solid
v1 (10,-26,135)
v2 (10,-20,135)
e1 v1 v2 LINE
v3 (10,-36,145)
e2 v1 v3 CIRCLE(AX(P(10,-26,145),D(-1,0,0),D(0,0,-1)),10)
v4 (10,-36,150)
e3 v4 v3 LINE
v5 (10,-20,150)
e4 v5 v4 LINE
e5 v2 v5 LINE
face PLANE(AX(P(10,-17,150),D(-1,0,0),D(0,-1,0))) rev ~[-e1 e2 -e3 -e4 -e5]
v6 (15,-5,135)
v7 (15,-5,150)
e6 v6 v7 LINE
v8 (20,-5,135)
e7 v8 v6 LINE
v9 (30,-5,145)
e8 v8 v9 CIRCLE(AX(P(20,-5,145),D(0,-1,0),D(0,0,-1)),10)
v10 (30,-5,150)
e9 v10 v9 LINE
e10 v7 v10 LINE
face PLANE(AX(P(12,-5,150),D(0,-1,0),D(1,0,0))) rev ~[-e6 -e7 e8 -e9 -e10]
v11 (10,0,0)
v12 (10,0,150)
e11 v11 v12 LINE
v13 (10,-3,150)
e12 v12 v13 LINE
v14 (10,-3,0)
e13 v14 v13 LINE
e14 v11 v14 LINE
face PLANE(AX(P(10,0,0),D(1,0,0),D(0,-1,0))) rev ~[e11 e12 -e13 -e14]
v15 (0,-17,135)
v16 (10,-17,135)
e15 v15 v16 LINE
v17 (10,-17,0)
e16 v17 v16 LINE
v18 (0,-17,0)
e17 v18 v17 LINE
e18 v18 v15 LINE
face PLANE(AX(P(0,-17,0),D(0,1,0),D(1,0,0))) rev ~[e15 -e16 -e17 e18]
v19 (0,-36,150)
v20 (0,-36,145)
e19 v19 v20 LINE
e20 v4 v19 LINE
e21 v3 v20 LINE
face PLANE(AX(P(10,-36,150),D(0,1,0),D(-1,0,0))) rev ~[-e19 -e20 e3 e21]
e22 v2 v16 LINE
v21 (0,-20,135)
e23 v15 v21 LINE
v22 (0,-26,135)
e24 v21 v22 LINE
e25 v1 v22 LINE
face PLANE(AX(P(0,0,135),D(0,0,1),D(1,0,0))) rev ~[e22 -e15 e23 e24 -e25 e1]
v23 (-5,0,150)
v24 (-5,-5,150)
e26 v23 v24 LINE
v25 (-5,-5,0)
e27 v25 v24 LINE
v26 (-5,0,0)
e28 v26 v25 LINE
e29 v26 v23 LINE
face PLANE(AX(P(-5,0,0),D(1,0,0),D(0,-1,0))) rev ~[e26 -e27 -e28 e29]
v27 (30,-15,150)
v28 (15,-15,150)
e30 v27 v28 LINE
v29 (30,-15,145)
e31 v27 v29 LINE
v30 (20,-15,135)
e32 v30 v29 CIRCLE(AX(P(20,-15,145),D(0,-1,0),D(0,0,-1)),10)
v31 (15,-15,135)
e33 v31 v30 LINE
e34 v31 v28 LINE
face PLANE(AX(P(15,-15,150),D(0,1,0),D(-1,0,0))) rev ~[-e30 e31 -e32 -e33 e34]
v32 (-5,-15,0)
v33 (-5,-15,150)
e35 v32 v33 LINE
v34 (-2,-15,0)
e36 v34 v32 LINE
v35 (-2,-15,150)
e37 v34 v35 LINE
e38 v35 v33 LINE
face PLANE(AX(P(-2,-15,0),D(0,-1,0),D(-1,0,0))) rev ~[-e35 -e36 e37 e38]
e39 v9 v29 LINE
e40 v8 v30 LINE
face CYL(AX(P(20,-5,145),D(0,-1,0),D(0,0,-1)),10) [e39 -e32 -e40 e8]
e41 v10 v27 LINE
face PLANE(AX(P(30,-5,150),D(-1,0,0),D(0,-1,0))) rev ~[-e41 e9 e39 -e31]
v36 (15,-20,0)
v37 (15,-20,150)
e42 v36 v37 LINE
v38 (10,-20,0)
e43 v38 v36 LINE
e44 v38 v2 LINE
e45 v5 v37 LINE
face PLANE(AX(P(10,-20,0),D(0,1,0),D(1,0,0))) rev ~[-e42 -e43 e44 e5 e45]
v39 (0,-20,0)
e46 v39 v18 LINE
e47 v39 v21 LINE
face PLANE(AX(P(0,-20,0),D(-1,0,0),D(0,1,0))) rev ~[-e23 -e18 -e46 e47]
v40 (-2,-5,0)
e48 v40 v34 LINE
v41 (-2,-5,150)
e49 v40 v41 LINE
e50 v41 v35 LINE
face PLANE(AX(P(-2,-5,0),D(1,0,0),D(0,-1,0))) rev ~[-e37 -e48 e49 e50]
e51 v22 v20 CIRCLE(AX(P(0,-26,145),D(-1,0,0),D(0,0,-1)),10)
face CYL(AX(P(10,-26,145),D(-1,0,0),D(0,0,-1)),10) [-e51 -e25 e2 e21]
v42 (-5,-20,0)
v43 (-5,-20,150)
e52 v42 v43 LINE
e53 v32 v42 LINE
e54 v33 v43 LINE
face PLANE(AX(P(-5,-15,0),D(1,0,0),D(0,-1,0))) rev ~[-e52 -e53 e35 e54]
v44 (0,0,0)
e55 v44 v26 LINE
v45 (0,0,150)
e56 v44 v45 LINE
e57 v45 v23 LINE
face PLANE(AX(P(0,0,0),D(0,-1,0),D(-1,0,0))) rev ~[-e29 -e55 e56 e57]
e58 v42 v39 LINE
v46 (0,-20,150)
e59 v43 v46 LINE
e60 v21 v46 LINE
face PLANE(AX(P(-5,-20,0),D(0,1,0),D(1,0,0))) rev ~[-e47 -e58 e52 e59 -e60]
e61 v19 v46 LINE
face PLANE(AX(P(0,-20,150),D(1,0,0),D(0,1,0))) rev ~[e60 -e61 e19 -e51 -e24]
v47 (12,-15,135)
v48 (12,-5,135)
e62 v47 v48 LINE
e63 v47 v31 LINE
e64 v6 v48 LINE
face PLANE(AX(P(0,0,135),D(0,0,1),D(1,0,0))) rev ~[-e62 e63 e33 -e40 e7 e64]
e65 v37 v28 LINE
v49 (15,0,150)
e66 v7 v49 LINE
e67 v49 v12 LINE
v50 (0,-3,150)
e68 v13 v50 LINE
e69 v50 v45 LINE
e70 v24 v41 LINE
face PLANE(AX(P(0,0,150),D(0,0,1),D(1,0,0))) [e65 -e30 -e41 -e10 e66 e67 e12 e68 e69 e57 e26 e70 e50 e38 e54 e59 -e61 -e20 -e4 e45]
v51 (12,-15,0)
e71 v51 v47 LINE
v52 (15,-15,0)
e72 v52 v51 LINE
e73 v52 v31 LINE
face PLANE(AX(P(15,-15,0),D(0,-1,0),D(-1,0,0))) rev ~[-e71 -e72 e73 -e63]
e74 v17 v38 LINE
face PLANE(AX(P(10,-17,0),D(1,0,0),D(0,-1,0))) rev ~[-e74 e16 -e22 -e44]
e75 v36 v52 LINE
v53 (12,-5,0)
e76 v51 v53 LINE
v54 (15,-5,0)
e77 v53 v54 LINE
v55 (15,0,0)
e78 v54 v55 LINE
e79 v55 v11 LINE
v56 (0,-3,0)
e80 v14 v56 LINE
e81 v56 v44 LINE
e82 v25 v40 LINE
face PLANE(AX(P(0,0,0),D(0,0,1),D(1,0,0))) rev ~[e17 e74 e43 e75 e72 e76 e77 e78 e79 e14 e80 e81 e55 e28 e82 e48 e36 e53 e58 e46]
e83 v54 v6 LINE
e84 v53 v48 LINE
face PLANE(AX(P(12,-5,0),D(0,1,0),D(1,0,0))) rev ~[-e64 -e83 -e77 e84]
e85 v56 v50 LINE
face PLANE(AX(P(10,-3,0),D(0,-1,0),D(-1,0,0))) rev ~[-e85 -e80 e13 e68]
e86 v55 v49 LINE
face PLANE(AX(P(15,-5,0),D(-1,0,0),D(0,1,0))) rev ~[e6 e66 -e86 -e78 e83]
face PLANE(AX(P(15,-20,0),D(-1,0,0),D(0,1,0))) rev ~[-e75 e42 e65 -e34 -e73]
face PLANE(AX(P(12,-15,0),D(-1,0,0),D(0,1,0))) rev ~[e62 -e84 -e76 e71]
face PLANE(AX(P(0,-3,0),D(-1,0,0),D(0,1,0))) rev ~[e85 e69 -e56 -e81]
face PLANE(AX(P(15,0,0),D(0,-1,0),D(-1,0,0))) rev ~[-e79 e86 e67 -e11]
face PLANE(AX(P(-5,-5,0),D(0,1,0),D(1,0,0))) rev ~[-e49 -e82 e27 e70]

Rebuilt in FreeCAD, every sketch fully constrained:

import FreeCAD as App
import Part
import Sketcher

V = App.Vector


def edges_at(feature, points):
    """Names of the edges that pass closest to the given points."""
    edges = feature.Shape.Edges
    near = lambda p: min(range(len(edges)), key=lambda i: edges[i].distToShape(Part.Vertex(*p))[0])
    return sorted({f"Edge{near(p) + 1}" for p in points})

doc = App.newDocument("Part")
params = doc.addObject("Spreadsheet::Sheet", "Params")
for row, (alias, value) in enumerate([
    ("sketch1_width", "5 mm"),
    ("sketch1_width2", "3 mm"),
    ("sketch1_width3", "10 mm"),
    ("pad1_length", "150 mm"),
    ("sketch2_width", "18 mm"),
    ("sketch2_width2", "10 mm"),
    ("sketch2_height", "19 mm"),
    ("pad2_length", "15 mm"),
    ("fillet_radius", "10 mm"),
], start=1):
    params.set(f"A{row}", alias)
    params.set(f"B{row}", "=" + value)
    params.setAlias(f"B{row}", alias)

body = doc.addObject("PartDesign::Body", "Body")

# Sketch on XY plane
sketch1 = body.newObject("Sketcher::SketchObject", "Sketch")
sketch1.AttachmentSupport = (doc.getObject("XY_Plane"), [""])
sketch1.MapMode = "FlatFace"
sketch1.addGeometry([
    Part.LineSegment(V(0, -3, 0), V(0, 0, 0)),  # 0
    Part.LineSegment(V(0, 0, 0), V(-5, 0, 0)),  # 1
    Part.LineSegment(V(-5, 0, 0), V(-5, -5, 0)),  # 2
    Part.LineSegment(V(-5, -5, 0), V(-2, -5, 0)),  # 3
    Part.LineSegment(V(-2, -5, 0), V(-2, -15, 0)),  # 4
    Part.LineSegment(V(-2, -15, 0), V(-5, -15, 0)),  # 5
    Part.LineSegment(V(-5, -15, 0), V(-5, -20, 0)),  # 6
    Part.LineSegment(V(-5, -20, 0), V(0, -20, 0)),  # 7
    Part.LineSegment(V(0, -20, 0), V(0, -17, 0)),  # 8
    Part.LineSegment(V(0, -17, 0), V(10, -17, 0)),  # 9
    Part.LineSegment(V(10, -17, 0), V(10, -20, 0)),  # 10
    Part.LineSegment(V(10, -20, 0), V(15, -20, 0)),  # 11
    Part.LineSegment(V(15, -20, 0), V(15, -15, 0)),  # 12
    Part.LineSegment(V(15, -15, 0), V(12, -15, 0)),  # 13
    Part.LineSegment(V(12, -15, 0), V(12, -5, 0)),  # 14
    Part.LineSegment(V(12, -5, 0), V(15, -5, 0)),  # 15
    Part.LineSegment(V(15, -5, 0), V(15, 0, 0)),  # 16
    Part.LineSegment(V(15, 0, 0), V(10, 0, 0)),  # 17
    Part.LineSegment(V(10, 0, 0), V(10, -3, 0)),  # 18
    Part.LineSegment(V(10, -3, 0), V(0, -3, 0)),  # 19
], False)
sketch1.addConstraint([
    Sketcher.Constraint("Coincident", 0, 2, 1, 1),
    Sketcher.Constraint("Coincident", 1, 2, 2, 1),
    Sketcher.Constraint("Coincident", 2, 2, 3, 1),
    Sketcher.Constraint("Coincident", 3, 2, 4, 1),
    Sketcher.Constraint("Coincident", 4, 2, 5, 1),
    Sketcher.Constraint("Coincident", 5, 2, 6, 1),
    Sketcher.Constraint("Coincident", 6, 2, 7, 1),
    Sketcher.Constraint("Coincident", 7, 2, 8, 1),
    Sketcher.Constraint("Coincident", 8, 2, 9, 1),
    Sketcher.Constraint("Coincident", 9, 2, 10, 1),
    Sketcher.Constraint("Coincident", 10, 2, 11, 1),
    Sketcher.Constraint("Coincident", 11, 2, 12, 1),
    Sketcher.Constraint("Coincident", 12, 2, 13, 1),
    Sketcher.Constraint("Coincident", 13, 2, 14, 1),
    Sketcher.Constraint("Coincident", 14, 2, 15, 1),
    Sketcher.Constraint("Coincident", 15, 2, 16, 1),
    Sketcher.Constraint("Coincident", 16, 2, 17, 1),
    Sketcher.Constraint("Coincident", 17, 2, 18, 1),
    Sketcher.Constraint("Coincident", 18, 2, 19, 1),
    Sketcher.Constraint("Coincident", 19, 2, 0, 1),
    Sketcher.Constraint("Vertical", 0),
    Sketcher.Constraint("Horizontal", 1),
    Sketcher.Constraint("Vertical", 2),
    Sketcher.Constraint("Horizontal", 3),
    Sketcher.Constraint("Vertical", 4),
    Sketcher.Constraint("Horizontal", 5),
    Sketcher.Constraint("Vertical", 6),
    Sketcher.Constraint("Horizontal", 7),
    Sketcher.Constraint("Vertical", 8),
    Sketcher.Constraint("Horizontal", 9),
    Sketcher.Constraint("Vertical", 10),
    Sketcher.Constraint("Horizontal", 11),
    Sketcher.Constraint("Vertical", 12),
    Sketcher.Constraint("Horizontal", 13),
    Sketcher.Constraint("Vertical", 14),
    Sketcher.Constraint("Horizontal", 15),
    Sketcher.Constraint("Vertical", 16),
    Sketcher.Constraint("Horizontal", 17),
    Sketcher.Constraint("Vertical", 18),
    Sketcher.Constraint("Horizontal", 19),
    Sketcher.Constraint("Coincident", 0, 2, -1, 1),
    Sketcher.Constraint("PointOnObject", 7, 2, -2),
    Sketcher.Constraint("PointOnObject", 16, 2, -1),
    Sketcher.Constraint("Horizontal", 7, 2, 10, 2),
    Sketcher.Constraint("Horizontal", 5, 2, 12, 2),
    Sketcher.Constraint("Horizontal", 3, 2, 14, 2),
    Sketcher.Constraint("Vertical", 2, 2, 5, 2),
    Sketcher.Constraint("Vertical", 12, 2, 15, 2),
    Sketcher.Constraint("Vertical", 10, 2, 17, 2),
    Sketcher.Constraint("Equal", 7, 11),
    Sketcher.Constraint("Equal", 5, 13),
    Sketcher.Constraint("Equal", 15, 0),
    Sketcher.Constraint("Equal", 17, 2),
    Sketcher.Constraint("Equal", 19, 4),
    Sketcher.Constraint("Equal", 2, 6),
    Sketcher.Constraint("Equal", 0, 8),
    Sketcher.Constraint("DistanceX", 1, 2, 1, 1, 5.0),
    Sketcher.Constraint("DistanceX", 3, 1, 3, 2, 3.0),
    Sketcher.Constraint("DistanceX", 9, 1, 9, 2, 10.0),
])
sketch1.setExpression("Constraints[56]", "Params.sketch1_width")
sketch1.setExpression("Constraints[57]", "Params.sketch1_width2")
sketch1.setExpression("Constraints[58]", "Params.sketch1_width3")
pad1 = body.newObject("PartDesign::Pad", "Pad")
pad1.Profile = sketch1
pad1.setExpression("Length", "Params.pad1_length")

# Sketch on XY plane
sketch2 = body.newObject("Sketcher::SketchObject", "Sketch001")
sketch2.AttachmentSupport = (doc.getObject("XY_Plane"), [""])
sketch2.MapMode = "FlatFace"
sketch2.AttachmentOffset = App.Placement(V(0, 0, 150), App.Rotation())
sketch2.addGeometry([
    Part.LineSegment(V(12, -5, 0), V(12, -15, 0)),  # 0
    Part.LineSegment(V(12, -15, 0), V(30, -15, 0)),  # 1
    Part.LineSegment(V(30, -15, 0), V(30, -5, 0)),  # 2
    Part.LineSegment(V(30, -5, 0), V(12, -5, 0)),  # 3
    Part.LineSegment(V(10, -17, 0), V(0, -17, 0)),  # 4
    Part.LineSegment(V(0, -17, 0), V(0, -36, 0)),  # 5
    Part.LineSegment(V(0, -36, 0), V(10, -36, 0)),  # 6
    Part.LineSegment(V(10, -36, 0), V(10, -17, 0)),  # 7
], False)
sketch2.addConstraint([
    Sketcher.Constraint("Coincident", 0, 2, 1, 1),
    Sketcher.Constraint("Coincident", 1, 2, 2, 1),
    Sketcher.Constraint("Coincident", 2, 2, 3, 1),
    Sketcher.Constraint("Coincident", 3, 2, 0, 1),
    Sketcher.Constraint("Coincident", 4, 2, 5, 1),
    Sketcher.Constraint("Coincident", 5, 2, 6, 1),
    Sketcher.Constraint("Coincident", 6, 2, 7, 1),
    Sketcher.Constraint("Coincident", 7, 2, 4, 1),
    Sketcher.Constraint("Vertical", 0),
    Sketcher.Constraint("Horizontal", 1),
    Sketcher.Constraint("Vertical", 2),
    Sketcher.Constraint("Horizontal", 3),
    Sketcher.Constraint("Horizontal", 4),
    Sketcher.Constraint("Vertical", 5),
    Sketcher.Constraint("Horizontal", 6),
    Sketcher.Constraint("Vertical", 7),
    Sketcher.Constraint("PointOnObject", 4, 2, -2),
    Sketcher.Constraint("Equal", 6, 0),
    Sketcher.Constraint("DistanceX", 1, 1, 1, 2, 18.0),
    Sketcher.Constraint("DistanceX", 4, 2, 4, 1, 10.0),
    Sketcher.Constraint("DistanceY", 5, 2, 5, 1, 19.0),
    Sketcher.Constraint("DistanceX", -1, 1, 0, 2, 12.0),
    Sketcher.Constraint("DistanceY", 0, 2, -1, 1, 15.0),
    Sketcher.Constraint("DistanceY", 4, 2, -1, 1, 17.0),
])
sketch2.setExpression("Constraints[18]", "Params.sketch2_width")
sketch2.setExpression("Constraints[19]", "Params.sketch2_width2")
sketch2.setExpression("Constraints[20]", "Params.sketch2_height")
pad2 = body.newObject("PartDesign::Pad", "Pad001")
pad2.Profile = sketch2
pad2.setExpression("Length", "Params.pad2_length")
pad2.Reversed = True
doc.recompute()

fillet = body.newObject("PartDesign::Fillet", "Fillet")
fillet.Base = (pad2, edges_at(pad2, [(30, -10, 135), (5, -36, 135)]))
fillet.setExpression("Radius", "Params.fillet_radius")

doc.recompute()
